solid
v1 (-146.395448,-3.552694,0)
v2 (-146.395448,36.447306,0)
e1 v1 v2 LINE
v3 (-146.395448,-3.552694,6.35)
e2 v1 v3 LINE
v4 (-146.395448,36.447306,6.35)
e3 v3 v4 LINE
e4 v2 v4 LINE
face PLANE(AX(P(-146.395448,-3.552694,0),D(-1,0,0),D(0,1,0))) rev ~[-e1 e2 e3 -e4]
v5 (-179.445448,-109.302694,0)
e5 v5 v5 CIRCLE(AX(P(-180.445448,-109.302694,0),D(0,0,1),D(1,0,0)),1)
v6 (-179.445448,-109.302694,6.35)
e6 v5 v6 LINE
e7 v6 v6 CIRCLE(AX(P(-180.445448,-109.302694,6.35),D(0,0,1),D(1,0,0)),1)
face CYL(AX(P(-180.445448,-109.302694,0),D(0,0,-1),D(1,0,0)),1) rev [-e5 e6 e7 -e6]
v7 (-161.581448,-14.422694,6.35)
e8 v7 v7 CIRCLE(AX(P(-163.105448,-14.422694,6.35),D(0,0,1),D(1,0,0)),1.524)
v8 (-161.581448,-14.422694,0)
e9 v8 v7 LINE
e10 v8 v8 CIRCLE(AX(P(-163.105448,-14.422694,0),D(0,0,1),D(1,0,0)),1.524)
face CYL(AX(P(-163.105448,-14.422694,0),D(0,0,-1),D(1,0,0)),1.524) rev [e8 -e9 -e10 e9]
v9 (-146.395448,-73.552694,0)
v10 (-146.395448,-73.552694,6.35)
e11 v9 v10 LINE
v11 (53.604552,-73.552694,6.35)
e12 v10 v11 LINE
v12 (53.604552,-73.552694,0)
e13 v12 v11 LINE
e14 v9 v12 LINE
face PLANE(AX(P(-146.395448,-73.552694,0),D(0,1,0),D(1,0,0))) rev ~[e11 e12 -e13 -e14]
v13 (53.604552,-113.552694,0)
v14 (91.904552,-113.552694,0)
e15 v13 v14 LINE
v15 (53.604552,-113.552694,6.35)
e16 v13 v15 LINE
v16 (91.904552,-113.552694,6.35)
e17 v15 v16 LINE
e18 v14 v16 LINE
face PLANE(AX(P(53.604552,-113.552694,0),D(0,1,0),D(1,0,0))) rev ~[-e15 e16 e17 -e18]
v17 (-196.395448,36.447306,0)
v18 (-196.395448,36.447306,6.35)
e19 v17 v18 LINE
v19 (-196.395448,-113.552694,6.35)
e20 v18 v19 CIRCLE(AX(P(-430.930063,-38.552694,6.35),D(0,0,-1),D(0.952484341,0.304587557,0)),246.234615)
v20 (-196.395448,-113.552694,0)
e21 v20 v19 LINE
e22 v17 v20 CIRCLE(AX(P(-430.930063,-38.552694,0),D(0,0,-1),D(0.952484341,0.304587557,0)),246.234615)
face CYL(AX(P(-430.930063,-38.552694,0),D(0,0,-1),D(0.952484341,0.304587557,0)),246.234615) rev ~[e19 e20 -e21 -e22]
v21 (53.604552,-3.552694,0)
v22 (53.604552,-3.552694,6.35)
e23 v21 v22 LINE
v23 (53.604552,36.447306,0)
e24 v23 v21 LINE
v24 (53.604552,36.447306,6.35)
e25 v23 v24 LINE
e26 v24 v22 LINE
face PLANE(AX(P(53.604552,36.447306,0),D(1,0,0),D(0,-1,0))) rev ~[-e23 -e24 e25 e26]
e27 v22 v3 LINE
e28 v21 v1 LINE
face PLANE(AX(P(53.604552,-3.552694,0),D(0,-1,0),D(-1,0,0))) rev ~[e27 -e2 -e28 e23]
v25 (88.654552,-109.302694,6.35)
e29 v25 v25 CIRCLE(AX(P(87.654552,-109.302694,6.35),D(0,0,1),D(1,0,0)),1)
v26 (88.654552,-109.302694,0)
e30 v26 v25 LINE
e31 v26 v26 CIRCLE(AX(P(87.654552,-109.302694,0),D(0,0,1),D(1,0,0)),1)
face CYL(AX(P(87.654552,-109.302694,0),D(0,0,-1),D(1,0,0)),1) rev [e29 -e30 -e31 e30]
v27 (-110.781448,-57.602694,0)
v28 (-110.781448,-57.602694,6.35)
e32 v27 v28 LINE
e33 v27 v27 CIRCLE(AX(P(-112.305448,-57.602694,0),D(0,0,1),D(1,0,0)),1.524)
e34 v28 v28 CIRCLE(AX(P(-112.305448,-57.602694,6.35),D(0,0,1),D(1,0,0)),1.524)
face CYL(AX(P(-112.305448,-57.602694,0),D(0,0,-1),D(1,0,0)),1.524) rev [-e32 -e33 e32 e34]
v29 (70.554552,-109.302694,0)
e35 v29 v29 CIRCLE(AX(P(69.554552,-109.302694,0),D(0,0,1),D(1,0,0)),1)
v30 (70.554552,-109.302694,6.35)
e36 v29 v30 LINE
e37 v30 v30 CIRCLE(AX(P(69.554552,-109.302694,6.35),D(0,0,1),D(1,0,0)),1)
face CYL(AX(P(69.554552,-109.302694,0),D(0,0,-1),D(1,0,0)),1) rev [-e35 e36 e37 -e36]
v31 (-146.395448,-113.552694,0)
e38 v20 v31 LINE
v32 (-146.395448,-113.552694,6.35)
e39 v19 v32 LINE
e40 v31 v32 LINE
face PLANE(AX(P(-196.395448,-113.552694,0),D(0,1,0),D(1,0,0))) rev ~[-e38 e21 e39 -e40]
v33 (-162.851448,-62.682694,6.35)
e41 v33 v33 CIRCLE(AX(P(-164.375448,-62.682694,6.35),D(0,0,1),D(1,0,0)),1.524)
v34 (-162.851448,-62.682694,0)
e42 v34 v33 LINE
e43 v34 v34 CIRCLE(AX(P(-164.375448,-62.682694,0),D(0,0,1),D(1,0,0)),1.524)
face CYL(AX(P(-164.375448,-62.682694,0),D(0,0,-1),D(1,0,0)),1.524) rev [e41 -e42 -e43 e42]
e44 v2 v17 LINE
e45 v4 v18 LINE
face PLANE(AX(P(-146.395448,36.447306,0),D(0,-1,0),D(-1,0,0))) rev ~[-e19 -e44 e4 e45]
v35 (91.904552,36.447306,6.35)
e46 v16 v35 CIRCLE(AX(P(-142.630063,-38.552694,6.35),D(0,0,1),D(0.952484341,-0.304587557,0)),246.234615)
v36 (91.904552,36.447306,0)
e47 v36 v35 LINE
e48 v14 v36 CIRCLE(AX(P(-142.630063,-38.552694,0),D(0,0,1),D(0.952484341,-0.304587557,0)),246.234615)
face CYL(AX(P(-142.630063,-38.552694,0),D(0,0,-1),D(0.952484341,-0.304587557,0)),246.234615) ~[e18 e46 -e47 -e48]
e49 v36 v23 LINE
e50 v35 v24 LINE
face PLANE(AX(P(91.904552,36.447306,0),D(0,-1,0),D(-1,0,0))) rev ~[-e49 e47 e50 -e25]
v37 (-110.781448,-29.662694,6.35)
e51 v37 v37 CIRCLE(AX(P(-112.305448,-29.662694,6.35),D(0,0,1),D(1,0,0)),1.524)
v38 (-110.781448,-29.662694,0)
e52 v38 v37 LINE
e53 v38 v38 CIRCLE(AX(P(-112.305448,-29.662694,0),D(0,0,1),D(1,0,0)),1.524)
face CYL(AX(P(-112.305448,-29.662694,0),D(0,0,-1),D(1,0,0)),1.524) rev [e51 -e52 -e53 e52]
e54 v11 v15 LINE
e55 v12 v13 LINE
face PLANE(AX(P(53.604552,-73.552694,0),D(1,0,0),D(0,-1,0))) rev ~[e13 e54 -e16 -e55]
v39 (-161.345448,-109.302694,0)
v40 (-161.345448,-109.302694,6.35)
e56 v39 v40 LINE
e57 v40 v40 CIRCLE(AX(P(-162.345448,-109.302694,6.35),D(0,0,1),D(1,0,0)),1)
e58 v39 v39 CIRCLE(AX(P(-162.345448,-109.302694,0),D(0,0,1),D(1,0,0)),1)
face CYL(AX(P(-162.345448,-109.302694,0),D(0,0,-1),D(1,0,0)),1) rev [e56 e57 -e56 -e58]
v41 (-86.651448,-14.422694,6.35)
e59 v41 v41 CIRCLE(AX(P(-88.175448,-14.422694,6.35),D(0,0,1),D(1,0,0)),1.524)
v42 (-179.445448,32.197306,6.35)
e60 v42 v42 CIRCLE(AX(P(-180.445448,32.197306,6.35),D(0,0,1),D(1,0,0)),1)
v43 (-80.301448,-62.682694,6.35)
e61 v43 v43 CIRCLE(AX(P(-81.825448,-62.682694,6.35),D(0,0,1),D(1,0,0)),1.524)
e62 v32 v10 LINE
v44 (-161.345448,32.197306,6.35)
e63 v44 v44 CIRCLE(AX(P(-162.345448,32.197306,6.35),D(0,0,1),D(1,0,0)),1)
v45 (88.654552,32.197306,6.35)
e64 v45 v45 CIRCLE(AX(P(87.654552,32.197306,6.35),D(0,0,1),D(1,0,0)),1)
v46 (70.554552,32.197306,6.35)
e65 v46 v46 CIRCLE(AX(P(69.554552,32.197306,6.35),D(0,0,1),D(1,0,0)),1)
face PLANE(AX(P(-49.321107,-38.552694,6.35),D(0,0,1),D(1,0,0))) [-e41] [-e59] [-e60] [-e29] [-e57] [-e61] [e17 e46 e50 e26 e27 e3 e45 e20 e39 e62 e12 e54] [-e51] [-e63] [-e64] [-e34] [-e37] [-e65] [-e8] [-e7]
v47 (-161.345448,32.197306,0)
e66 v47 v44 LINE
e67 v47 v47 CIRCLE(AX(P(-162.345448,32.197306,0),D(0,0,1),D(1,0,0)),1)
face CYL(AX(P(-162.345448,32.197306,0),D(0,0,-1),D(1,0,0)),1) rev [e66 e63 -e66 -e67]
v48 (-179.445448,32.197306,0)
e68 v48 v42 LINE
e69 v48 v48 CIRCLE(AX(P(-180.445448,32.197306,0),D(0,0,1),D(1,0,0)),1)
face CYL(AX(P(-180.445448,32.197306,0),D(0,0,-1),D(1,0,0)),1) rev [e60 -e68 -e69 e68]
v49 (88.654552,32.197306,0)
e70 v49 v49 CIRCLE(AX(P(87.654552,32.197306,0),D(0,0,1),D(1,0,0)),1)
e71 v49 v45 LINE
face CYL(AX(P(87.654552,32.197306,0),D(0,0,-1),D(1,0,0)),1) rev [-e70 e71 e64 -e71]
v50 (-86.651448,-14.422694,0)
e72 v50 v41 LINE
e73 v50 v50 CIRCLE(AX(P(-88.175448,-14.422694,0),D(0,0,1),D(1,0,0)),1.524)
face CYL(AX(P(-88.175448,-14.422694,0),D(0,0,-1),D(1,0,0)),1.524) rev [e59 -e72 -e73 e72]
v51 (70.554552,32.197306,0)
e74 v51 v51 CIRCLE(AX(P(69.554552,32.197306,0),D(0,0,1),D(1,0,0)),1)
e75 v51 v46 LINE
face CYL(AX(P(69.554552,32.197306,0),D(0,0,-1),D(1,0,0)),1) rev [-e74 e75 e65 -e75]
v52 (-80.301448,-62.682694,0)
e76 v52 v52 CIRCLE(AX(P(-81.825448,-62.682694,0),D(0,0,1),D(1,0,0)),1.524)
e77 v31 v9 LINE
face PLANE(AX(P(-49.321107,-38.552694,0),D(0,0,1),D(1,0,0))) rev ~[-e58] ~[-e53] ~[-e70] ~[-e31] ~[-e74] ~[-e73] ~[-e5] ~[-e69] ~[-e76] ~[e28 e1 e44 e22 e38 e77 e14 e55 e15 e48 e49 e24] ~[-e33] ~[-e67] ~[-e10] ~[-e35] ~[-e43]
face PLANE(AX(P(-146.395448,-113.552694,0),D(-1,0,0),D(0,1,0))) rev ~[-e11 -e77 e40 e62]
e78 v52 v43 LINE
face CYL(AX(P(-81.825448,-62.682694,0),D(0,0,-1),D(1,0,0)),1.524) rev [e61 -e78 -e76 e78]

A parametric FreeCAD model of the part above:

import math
import FreeCAD as App
import Part
import Sketcher
from FreeCAD import Vector

doc = App.newDocument("Part")
body = doc.addObject("PartDesign::Body", "Body")

sketch1 = body.newObject("Sketcher::SketchObject", "Sketch")
sketch1.AttachmentSupport = (doc.getObject("XY_Plane"), [""])
sketch1.MapMode = "FlatFace"
sketch1.addGeometry(Part.ArcOfCircle(Part.Circle(Vector(-430.930063, -38.552694, 0), Vector(0, 0, 1), 246.234615), math.radians(-17.733352), math.radians(17.733352)), False)
sketch1.addGeometry(Part.LineSegment(Vector(-196.395448, -113.552694, 0), Vector(-146.395448, -113.552694, 0)), False)
sketch1.addGeometry(Part.LineSegment(Vector(-146.395448, -113.552694, 0), Vector(-146.395448, -73.552694, 0)), False)
sketch1.addGeometry(Part.LineSegment(Vector(-146.395448, -73.552694, 0), Vector(53.604552, -73.552694, 0)), False)
sketch1.addGeometry(Part.LineSegment(Vector(53.604552, -73.552694, 0), Vector(53.604552, -113.552694, 0)), False)
sketch1.addGeometry(Part.LineSegment(Vector(53.604552, -113.552694, 0), Vector(91.904552, -113.552694, 0)), False)
sketch1.addGeometry(Part.ArcOfCircle(Part.Circle(Vector(-142.630063, -38.552694, 0), Vector(0, 0, 1), 246.234615), math.radians(-17.733352), math.radians(17.733352)), False)
sketch1.addGeometry(Part.LineSegment(Vector(91.904552, 36.447306, 0), Vector(53.604552, 36.447306, 0)), False)
sketch1.addGeometry(Part.LineSegment(Vector(53.604552, 36.447306, 0), Vector(53.604552, -3.552694, 0)), False)
sketch1.addGeometry(Part.LineSegment(Vector(53.604552, -3.552694, 0), Vector(-146.395448, -3.552694, 0)), False)
sketch1.addGeometry(Part.LineSegment(Vector(-146.395448, -3.552694, 0), Vector(-146.395448, 36.447306, 0)), False)
sketch1.addGeometry(Part.LineSegment(Vector(-146.395448, 36.447306, 0), Vector(-196.395448, 36.447306, 0)), False)
sketch1.addGeometry(Part.Circle(Vector(-180.445448, -109.302694, 0), Vector(0, 0, 1), 1), False)
sketch1.addGeometry(Part.Circle(Vector(-162.345448, -109.302694, 0), Vector(0, 0, 1), 1), False)
sketch1.addGeometry(Part.Circle(Vector(-164.375448, -62.682694, 0), Vector(0, 0, 1), 1.524), False)
sketch1.addGeometry(Part.Circle(Vector(-112.305448, -57.602694, 0), Vector(0, 0, 1), 1.524), False)
sketch1.addGeometry(Part.Circle(Vector(-81.825448, -62.682694, 0), Vector(0, 0, 1), 1.524), False)
sketch1.addGeometry(Part.Circle(Vector(69.554552, -109.302694, 0), Vector(0, 0, 1), 1), False)
sketch1.addGeometry(Part.Circle(Vector(87.654552, -109.302694, 0), Vector(0, 0, 1), 1), False)
sketch1.addGeometry(Part.Circle(Vector(-163.105448, -14.422694, 0), Vector(0, 0, 1), 1.524), False)
sketch1.addGeometry(Part.Circle(Vector(-112.305448, -29.662694, 0), Vector(0, 0, 1), 1.524), False)
sketch1.addGeometry(Part.Circle(Vector(-88.175448, -14.422694, 0), Vector(0, 0, 1), 1.524), False)
sketch1.addGeometry(Part.Circle(Vector(-180.445448, 32.197306, 0), Vector(0, 0, 1), 1), False)
sketch1.addGeometry(Part.Circle(Vector(-162.345448, 32.197306, 0), Vector(0, 0, 1), 1), False)
sketch1.addGeometry(Part.Circle(Vector(69.554552, 32.197306, 0), Vector(0, 0, 1), 1), False)
sketch1.addGeometry(Part.Circle(Vector(87.654552, 32.197306, 0), Vector(0, 0, 1), 1), False)
sketch1.addConstraint(Sketcher.Constraint("Coincident", 0, 1, 1, 1))
sketch1.addConstraint(Sketcher.Constraint("Coincident", 1, 2, 2, 1))
sketch1.addConstraint(Sketcher.Constraint("Coincident", 2, 2, 3, 1))
sketch1.addConstraint(Sketcher.Constraint("Coincident", 3, 2, 4, 1))
sketch1.addConstraint(Sketcher.Constraint("Coincident", 4, 2, 5, 1))
sketch1.addConstraint(Sketcher.Constraint("Coincident", 5, 2, 6, 1))
sketch1.addConstraint(Sketcher.Constraint("Coincident", 6, 2, 7, 1))
sketch1.addConstraint(Sketcher.Constraint("Coincident", 7, 2, 8, 1))
sketch1.addConstraint(Sketcher.Constraint("Coincident", 8, 2, 9, 1))
sketch1.addConstraint(Sketcher.Constraint("Coincident", 9, 2, 10, 1))
sketch1.addConstraint(Sketcher.Constraint("Coincident", 10, 2, 11, 1))
sketch1.addConstraint(Sketcher.Constraint("Coincident", 11, 2, 0, 2))
sketch1.addConstraint(Sketcher.Constraint("Horizontal", 1))
sketch1.addConstraint(Sketcher.Constraint("Vertical", 2))
sketch1.addConstraint(Sketcher.Constraint("Horizontal", 3))
sketch1.addConstraint(Sketcher.Constraint("Vertical", 4))
sketch1.addConstraint(Sketcher.Constraint("Horizontal", 5))
sketch1.addConstraint(Sketcher.Constraint("Horizontal", 7))
sketch1.addConstraint(Sketcher.Constraint("Vertical", 8))
sketch1.addConstraint(Sketcher.Constraint("Horizontal", 9))
sketch1.addConstraint(Sketcher.Constraint("Vertical", 10))
sketch1.addConstraint(Sketcher.Constraint("Horizontal", 11))
sketch1.addConstraint(Sketcher.Constraint("Equal", 0, 6))
sketch1.addConstraint(Sketcher.Constraint("Equal", 12, 13))
sketch1.addConstraint(Sketcher.Constraint("Equal", 14, 15))
sketch1.addConstraint(Sketcher.Constraint("Equal", 15, 16))
sketch1.addConstraint(Sketcher.Constraint("Equal", 13, 17))
sketch1.addConstraint(Sketcher.Constraint("Equal", 17, 18))
sketch1.addConstraint(Sketcher.Constraint("Equal", 16, 19))
sketch1.addConstraint(Sketcher.Constraint("Equal", 19, 20))
sketch1.addConstraint(Sketcher.Constraint("Equal", 20, 21))
sketch1.addConstraint(Sketcher.Constraint("Equal", 18, 22))
sketch1.addConstraint(Sketcher.Constraint("Equal", 22, 23))
sketch1.addConstraint(Sketcher.Constraint("Equal", 23, 24))
sketch1.addConstraint(Sketcher.Constraint("Equal", 24, 25))
sketch1.addConstraint(Sketcher.Constraint("Horizontal", 0, 3, 6, 3))
sketch1.addConstraint(Sketcher.Constraint("Horizontal", 12, 3, 13, 3))
sketch1.addConstraint(Sketcher.Constraint("Horizontal", 14, 3, 16, 3))
sketch1.addConstraint(Sketcher.Constraint("Horizontal", 13, 3, 17, 3))
sketch1.addConstraint(Sketcher.Constraint("Horizontal", 17, 3, 18, 3))
sketch1.addConstraint(Sketcher.Constraint("Horizontal", 19, 3, 21, 3))
sketch1.addConstraint(Sketcher.Constraint("Horizontal", 22, 3, 23, 3))
sketch1.addConstraint(Sketcher.Constraint("Horizontal", 23, 3, 24, 3))
sketch1.addConstraint(Sketcher.Constraint("Horizontal", 24, 3, 25, 3))
sketch1.addConstraint(Sketcher.Constraint("Horizontal", 1, 2, 4, 2))
sketch1.addConstraint(Sketcher.Constraint("Horizontal", 7, 2, 10, 2))
sketch1.addConstraint(Sketcher.Constraint("Vertical", 15, 3, 20, 3))
sketch1.addConstraint(Sketcher.Constraint("Vertical", 12, 3, 22, 3))
sketch1.addConstraint(Sketcher.Constraint("Vertical", 13, 3, 23, 3))
sketch1.addConstraint(Sketcher.Constraint("Vertical", 17, 3, 24, 3))
sketch1.addConstraint(Sketcher.Constraint("Vertical", 18, 3, 25, 3))
sketch1.addConstraint(Sketcher.Constraint("Vertical", 5, 2, 6, 2))
sketch1.addConstraint(Sketcher.Constraint("Vertical", 4, 2, 7, 2))
sketch1.addConstraint(Sketcher.Constraint("Vertical", 2, 2, 9, 2))
sketch1.addConstraint(Sketcher.Constraint("Equal", 4, 8))
sketch1.addConstraint(Sketcher.Constraint("Diameter", 12, 2.0))
sketch1.addConstraint(Sketcher.Constraint("DistanceX", 1, 1, 1, 2, 50.0))
sketch1.addConstraint(Sketcher.Constraint("DistanceX", 3, 1, 3, 2, 200.0))
sketch1.addConstraint(Sketcher.Constraint("DistanceY", 2, 1, 2, 2, 40.0))
sketch1.addConstraint(Sketcher.Constraint("Diameter", 14, 3.048))
sketch1.addConstraint(Sketcher.Constraint("DistanceX", 5, 1, 5, 2, 38.3))
sketch1.addConstraint(Sketcher.Constraint("DistanceX", 13, 3, 18, 3, 250.0))
sketch1.addConstraint(Sketcher.Constraint("DistanceY", 2, 2, 6, 3, 35.0))
sketch1.addConstraint(Sketcher.Constraint("DistanceX", 12, 3, 13, 3, 18.1))
sketch1.addConstraint(Sketcher.Constraint("DistanceY", 13, 3, 15, 3, 51.7))
sketch1.addConstraint(Sketcher.Constraint("DistanceX", 13, 3, 17, 3, 231.9))
sketch1.addConstraint(Sketcher.Constraint("DistanceX", 19, 3, 15, 3, 50.8))
sketch1.addConstraint(Sketcher.Constraint("DistanceY", 17, 3, 24, 3, 141.5))
sketch1.addConstraint(Sketcher.Constraint("DistanceY", 12, 3, 6, 3, 70.75))
sketch1.addConstraint(Sketcher.Constraint("DistanceY", 14, 3, 6, 3, 24.13))
sketch1.addConstraint(Sketcher.Constraint("DistanceX", 14, 3, 13, 3, 2.03))
sketch1.addConstraint(Sketcher.Constraint("DistanceX", 14, 3, 15, 3, 52.07))
sketch1.addConstraint(Sketcher.Constraint("DistanceX", 15, 3, 16, 3, 30.48))
sketch1.addConstraint(Sketcher.Constraint("DistanceY", 6, 3, 19, 3, 24.13))
sketch1.addConstraint(Sketcher.Constraint("DistanceY", 15, 3, 20, 3, 27.94))
sketch1.addConstraint(Sketcher.Constraint("DistanceX", 20, 3, 21, 3, 24.13))
sketch1.addConstraint(Sketcher.Constraint("DistanceX", 0, 1, 12, 3, 15.95))
sketch1.addConstraint(Sketcher.Constraint("Radius", 0, 246.234615))
sketch1.addConstraint(Sketcher.Constraint("DistanceX", 12, 3, -1, 1, 180.445448))
sketch1.addConstraint(Sketcher.Constraint("DistanceY", 0, 3, -1, 1, 38.552694))
pad1 = body.newObject("PartDesign::Pad", "Pad")
pad1.Profile = sketch1
pad1.Length = 6.35

doc.recompute()
